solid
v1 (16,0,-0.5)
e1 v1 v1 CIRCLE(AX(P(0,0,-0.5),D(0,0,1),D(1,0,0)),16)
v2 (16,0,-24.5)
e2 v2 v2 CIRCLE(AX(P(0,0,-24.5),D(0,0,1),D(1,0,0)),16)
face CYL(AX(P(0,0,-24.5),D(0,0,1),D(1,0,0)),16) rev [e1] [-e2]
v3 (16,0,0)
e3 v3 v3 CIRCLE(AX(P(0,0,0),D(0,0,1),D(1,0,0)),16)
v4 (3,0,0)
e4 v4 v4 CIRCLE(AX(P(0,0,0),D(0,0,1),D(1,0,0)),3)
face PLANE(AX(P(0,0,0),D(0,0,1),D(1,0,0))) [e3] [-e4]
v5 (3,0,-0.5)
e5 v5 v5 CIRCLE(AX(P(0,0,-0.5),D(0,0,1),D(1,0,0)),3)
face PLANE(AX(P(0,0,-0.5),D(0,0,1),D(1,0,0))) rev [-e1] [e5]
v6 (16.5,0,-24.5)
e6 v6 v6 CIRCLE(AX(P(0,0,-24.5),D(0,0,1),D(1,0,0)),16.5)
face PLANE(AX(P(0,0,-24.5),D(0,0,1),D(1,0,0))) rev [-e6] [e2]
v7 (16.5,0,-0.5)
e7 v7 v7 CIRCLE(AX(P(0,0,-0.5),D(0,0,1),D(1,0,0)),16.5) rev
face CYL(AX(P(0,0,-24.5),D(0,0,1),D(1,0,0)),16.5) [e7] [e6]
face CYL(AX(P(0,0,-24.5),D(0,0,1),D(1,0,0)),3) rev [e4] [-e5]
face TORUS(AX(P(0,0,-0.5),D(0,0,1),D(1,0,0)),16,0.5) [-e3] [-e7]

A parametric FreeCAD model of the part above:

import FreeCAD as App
import Part
import Sketcher
Q = App.Units.Quantity


def edges_at(feature, points):
    """Names of the edges that pass closest to the given points."""
    edges = feature.Shape.Edges
    near = lambda p: min(range(len(edges)), key=lambda i: edges[i].distToShape(Part.Vertex(*p))[0])
    return sorted({f"Edge{near(p) + 1}" for p in points})


def faces_at(feature, points):
    """Names of the faces that lie closest to the given points."""
    faces = feature.Shape.Faces
    near = lambda p: min(range(len(faces)), key=lambda i: faces[i].distToShape(Part.Vertex(*p))[0])
    return sorted({f"Face{near(p) + 1}" for p in points})

doc = App.newDocument("Part")
body = doc.addObject("PartDesign::Body", "Body")

sketch1 = doc.addObject("Sketcher::SketchObject", "Sketch")
body.addObject(sketch1)
sketch1.AttachmentSupport = (doc.XY_Plane, [""])
sketch1.MapMode = "FlatFace"
sketch1.addGeometry(Part.Circle(App.Vector(0, 0, 0), App.Vector(0, 0, 1), 16), False)
sketch1.addConstraint(Sketcher.Constraint("Coincident", 0, 3, -1, 1))
sketch1.addConstraint(Sketcher.Constraint("Diameter", 0, Q("33 mm")))
pad1 = doc.addObject("PartDesign::Pad", "Pad")
body.addObject(pad1)
pad1.Profile = sketch1
pad1.Length = 24.5
pad1.Reversed = True
doc.recompute()

thickness = doc.addObject("PartDesign::Thickness", "Thickness")
body.addObject(thickness)
thickness.Base = (pad1, faces_at(pad1, [(0, 0, -24.5)]))
thickness.Value = 0.5
thickness.Reversed = True
thickness.Join = "Intersection"

sketch2 = doc.addObject("Sketcher::SketchObject", "Sketch001")
body.addObject(sketch2)
sketch2.AttachmentSupport = (doc.XY_Plane, [""])
sketch2.MapMode = "FlatFace"
sketch2.addGeometry(Part.Circle(App.Vector(0, 0, 0), App.Vector(0, 0, 1), 3), False)
sketch2.addConstraint(Sketcher.Constraint("Coincident", 0, 3, -1, 1))
sketch2.addConstraint(Sketcher.Constraint("Diameter", 0, Q("6 mm")))
pocket1 = doc.addObject("PartDesign::Pocket", "Pocket")
body.addObject(pocket1)
pocket1.Profile = sketch2
pocket1.Type = "ThroughAll"
doc.recompute()

fillet = doc.addObject("PartDesign::Fillet", "Fillet")
body.addObject(fillet)
fillet.Base = (pocket1, edges_at(pocket1, [(-16.5, 0, 0)]))
fillet.Radius = 0.5

doc.recompute()
